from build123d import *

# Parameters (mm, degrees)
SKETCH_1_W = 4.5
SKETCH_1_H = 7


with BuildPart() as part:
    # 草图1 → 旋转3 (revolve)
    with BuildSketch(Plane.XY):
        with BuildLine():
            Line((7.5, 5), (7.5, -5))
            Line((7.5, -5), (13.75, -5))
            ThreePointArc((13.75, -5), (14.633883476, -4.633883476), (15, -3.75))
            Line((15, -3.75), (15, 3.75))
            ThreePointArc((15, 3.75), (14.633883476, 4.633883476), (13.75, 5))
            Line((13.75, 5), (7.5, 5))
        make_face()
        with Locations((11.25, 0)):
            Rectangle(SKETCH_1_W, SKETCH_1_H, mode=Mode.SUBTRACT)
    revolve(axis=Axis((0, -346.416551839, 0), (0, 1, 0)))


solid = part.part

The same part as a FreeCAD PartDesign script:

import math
import FreeCAD as App
import Part
import Sketcher

V = App.Vector


def add_polygon(sketch, points):
    """Adds a closed chain of lines whose ends are joined by coincident constraints."""
    first, n = sketch.GeometryCount, len(points)
    for a, b in zip(points, points[1:] + points[:1]):
        sketch.addGeometry(Part.LineSegment(App.Vector(*a, 0), App.Vector(*b, 0)), False)
    for i in range(n):
        sketch.addConstraint(Sketcher.Constraint("Coincident", first + i, 2, first + (i + 1) % n, 1))

doc = App.newDocument("Part")
body = doc.addObject("PartDesign::Body", "Body")

sketch1 = doc.addObject("Sketcher::SketchObject", "Sketch")
body.addObject(sketch1)
sketch1.AttachmentSupport = (doc.XY_Plane, [""])
sketch1.MapMode = "FlatFace"
sketch1.addGeometry(Part.LineSegment(V(7.5, 5, 0), V(7.5, -5, 0)), False)
sketch1.addGeometry(Part.LineSegment(V(7.5, -5, 0), V(13.8, -5, 0)), False)
sketch1.addGeometry(Part.ArcOfCircle(Part.Circle(V(13.7, -3.7, 0), V(0, 0, 1), 1.3), math.radians(-90), math.radians(0)), False)
sketch1.addGeometry(Part.LineSegment(V(15, -3.8, 0), V(15, 3.8, 0)), False)
sketch1.addGeometry(Part.ArcOfCircle(Part.Circle(V(13.7, 3.7, 0), V(0, 0, 1), 1.3), math.radians(0), math.radians(90)), False)
sketch1.addGeometry(Part.LineSegment(V(13.8, 5, 0), V(7.5, 5, 0)), False)
add_polygon(sketch1, [(13.5, -3.5), (9, -3.5), (9, 3.5), (13.5, 3.5)])
sketch1.addConstraint([
    Sketcher.Constraint("Coincident", 0, 2, 1, 1),
    Sketcher.Constraint("Tangent", 1, 2, 2, 1),
    Sketcher.Constraint("Tangent", 2, 2, 3, 1),
    Sketcher.Constraint("Tangent", 3, 2, 4, 1),
    Sketcher.Constraint("Tangent", 4, 2, 5, 1),
    Sketcher.Constraint("Coincident", 5, 2, 0, 1),
    Sketcher.Constraint("Vertical", 0),
    Sketcher.Constraint("Horizontal", 1),
    Sketcher.Constraint("Vertical", 3),
    Sketcher.Constraint("Horizontal", 5),
    Sketcher.Constraint("Horizontal", 6),
    Sketcher.Constraint("Vertical", 7),
    Sketcher.Constraint("Horizontal", 8),
    Sketcher.Constraint("Vertical", 9),
    Sketcher.Constraint("Equal", 2, 4),
    Sketcher.Constraint("DistanceY", 0, 2, 0, 1, 10.0),
    Sketcher.Constraint("DistanceY", 7, 1, 7, 2, 7.0),
    Sketcher.Constraint("Radius", 2, 1.25),
    Sketcher.Constraint("DistanceX", 6, 2, 6, 1, 4.5),
    Sketcher.Constraint("DistanceY", 0, 2, -1, 1, 5.0),
    Sketcher.Constraint("DistanceX", -1, 1, 2, 2, 15.0),
    Sketcher.Constraint("DistanceX", -1, 1, 6, 2, 9.0),
    Sketcher.Constraint("DistanceX", 5, 2, 8, 2, 6.0),
    Sketcher.Constraint("DistanceY", 6, 2, -1, 1, 3.5),
])
revolution = doc.addObject("PartDesign::Revolution", "Revolution")
body.addObject(revolution)
revolution.Profile = sketch1
revolution.ReferenceAxis = (sketch1, ["V_Axis"])
revolution.Angle = 360

doc.recompute()
